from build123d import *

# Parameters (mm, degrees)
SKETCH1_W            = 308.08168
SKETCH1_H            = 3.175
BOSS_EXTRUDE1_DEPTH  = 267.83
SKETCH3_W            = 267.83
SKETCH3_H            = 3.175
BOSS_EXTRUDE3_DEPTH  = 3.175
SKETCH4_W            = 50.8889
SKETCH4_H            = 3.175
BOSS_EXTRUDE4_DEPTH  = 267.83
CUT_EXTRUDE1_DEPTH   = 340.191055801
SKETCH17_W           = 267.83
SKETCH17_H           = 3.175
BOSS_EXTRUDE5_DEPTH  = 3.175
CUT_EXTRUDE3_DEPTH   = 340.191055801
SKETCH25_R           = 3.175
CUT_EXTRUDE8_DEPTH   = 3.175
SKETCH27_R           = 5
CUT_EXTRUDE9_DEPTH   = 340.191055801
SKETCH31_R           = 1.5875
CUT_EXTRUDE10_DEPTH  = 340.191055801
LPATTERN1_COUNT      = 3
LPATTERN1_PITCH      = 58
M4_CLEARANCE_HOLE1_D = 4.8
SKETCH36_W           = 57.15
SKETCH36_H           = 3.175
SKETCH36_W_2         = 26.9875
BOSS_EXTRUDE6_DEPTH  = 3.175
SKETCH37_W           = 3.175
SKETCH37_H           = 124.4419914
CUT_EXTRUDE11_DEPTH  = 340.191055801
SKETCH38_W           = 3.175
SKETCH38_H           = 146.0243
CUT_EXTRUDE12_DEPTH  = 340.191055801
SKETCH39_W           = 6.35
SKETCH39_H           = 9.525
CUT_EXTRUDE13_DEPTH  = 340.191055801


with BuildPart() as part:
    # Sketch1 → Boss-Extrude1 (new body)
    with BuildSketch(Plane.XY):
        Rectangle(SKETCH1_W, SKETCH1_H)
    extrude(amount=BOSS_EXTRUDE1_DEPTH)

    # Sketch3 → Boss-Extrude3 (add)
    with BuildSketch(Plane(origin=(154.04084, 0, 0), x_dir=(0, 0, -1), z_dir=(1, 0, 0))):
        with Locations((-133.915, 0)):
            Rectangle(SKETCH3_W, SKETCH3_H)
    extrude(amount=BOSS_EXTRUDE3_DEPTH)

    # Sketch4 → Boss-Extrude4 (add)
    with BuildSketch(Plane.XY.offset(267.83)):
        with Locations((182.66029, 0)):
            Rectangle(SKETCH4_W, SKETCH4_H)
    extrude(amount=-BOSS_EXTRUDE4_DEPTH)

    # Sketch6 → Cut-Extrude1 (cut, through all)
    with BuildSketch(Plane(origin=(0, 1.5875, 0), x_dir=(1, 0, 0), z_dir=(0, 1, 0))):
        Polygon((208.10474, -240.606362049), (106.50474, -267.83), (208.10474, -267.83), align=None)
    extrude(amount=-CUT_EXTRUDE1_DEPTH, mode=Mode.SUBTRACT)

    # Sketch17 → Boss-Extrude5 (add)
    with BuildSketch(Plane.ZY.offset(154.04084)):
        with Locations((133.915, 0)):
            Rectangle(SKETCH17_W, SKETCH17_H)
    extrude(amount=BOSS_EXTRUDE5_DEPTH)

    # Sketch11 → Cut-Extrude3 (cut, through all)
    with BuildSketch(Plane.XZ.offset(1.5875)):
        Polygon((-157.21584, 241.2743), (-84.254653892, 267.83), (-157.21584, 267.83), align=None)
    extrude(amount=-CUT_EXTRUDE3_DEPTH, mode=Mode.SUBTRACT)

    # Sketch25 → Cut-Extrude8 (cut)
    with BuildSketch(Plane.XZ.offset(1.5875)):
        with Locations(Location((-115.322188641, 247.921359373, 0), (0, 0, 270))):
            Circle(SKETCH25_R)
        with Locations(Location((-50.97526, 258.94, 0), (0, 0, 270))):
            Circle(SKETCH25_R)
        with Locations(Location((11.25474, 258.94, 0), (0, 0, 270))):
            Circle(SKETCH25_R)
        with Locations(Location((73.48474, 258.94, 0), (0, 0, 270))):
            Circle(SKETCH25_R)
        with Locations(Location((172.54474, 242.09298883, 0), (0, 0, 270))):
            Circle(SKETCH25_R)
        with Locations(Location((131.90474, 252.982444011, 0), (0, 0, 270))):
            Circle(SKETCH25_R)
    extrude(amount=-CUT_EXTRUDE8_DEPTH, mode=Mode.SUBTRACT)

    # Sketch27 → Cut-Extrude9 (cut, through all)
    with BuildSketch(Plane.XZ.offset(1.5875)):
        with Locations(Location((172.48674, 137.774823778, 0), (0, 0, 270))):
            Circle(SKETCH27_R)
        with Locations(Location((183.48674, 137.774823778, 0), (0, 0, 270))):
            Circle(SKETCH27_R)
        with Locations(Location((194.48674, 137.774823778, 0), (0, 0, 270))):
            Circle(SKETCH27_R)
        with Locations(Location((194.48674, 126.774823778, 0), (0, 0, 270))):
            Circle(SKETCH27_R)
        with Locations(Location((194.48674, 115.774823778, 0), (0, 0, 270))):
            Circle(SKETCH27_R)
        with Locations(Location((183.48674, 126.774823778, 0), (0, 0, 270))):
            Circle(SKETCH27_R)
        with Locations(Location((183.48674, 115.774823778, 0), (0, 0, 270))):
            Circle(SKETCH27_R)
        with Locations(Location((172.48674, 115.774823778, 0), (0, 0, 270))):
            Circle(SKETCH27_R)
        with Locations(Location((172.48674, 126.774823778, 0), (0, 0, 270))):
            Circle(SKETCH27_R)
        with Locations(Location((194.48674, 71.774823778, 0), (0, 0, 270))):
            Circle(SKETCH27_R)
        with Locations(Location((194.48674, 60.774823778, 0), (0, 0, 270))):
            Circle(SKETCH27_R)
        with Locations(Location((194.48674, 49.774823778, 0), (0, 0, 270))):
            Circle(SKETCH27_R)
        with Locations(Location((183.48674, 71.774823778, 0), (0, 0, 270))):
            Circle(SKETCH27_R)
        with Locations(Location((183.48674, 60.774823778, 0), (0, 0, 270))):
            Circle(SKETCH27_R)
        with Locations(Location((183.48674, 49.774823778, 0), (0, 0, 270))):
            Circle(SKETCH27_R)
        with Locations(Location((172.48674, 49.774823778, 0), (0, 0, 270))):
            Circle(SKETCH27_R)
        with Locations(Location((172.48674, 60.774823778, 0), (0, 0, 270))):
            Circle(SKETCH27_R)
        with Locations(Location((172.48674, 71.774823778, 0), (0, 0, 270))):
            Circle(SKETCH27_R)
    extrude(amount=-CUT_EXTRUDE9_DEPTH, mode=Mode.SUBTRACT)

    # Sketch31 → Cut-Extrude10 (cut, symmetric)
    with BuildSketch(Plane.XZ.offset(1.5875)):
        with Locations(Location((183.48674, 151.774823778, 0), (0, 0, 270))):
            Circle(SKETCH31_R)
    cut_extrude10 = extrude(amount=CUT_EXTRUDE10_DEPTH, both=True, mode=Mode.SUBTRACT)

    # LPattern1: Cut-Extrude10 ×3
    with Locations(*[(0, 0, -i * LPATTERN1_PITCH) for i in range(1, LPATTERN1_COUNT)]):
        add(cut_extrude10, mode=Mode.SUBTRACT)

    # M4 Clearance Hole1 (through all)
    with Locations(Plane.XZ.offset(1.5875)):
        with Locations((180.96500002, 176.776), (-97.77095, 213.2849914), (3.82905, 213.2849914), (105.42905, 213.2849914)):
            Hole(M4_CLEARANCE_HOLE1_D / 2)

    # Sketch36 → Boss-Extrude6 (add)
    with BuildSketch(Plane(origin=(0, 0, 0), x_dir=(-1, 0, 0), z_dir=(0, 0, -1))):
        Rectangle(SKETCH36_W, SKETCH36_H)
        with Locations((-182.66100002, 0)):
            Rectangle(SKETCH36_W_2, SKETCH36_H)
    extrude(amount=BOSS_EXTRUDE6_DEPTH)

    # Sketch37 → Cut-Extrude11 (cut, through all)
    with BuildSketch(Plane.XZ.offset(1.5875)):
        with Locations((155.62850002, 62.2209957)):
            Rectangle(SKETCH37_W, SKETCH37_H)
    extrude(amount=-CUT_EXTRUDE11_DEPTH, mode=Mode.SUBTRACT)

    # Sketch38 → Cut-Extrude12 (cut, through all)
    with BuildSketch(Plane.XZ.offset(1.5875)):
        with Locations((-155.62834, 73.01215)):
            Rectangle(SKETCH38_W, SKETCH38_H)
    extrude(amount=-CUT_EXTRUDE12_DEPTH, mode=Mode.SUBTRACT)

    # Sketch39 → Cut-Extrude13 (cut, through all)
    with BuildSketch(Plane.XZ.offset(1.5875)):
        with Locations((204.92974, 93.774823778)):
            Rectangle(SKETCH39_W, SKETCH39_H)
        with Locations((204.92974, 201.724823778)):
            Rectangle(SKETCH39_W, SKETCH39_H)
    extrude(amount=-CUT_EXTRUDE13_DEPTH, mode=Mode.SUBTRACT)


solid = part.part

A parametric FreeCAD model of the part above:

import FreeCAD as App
import Part
import Sketcher
Q = App.Units.Quantity

doc = App.newDocument("Part")
body = doc.addObject("PartDesign::Body", "Body")

sketch1 = body.newObject("Sketcher::SketchObject", "Sketch")
sketch1.AttachmentSupport = (doc.getObject("XY_Plane"), [""])
sketch1.MapMode = "FlatFace"
sketch1.addGeometry([
    Part.LineSegment(App.Vector(-154.04084, 1.5875, 0), App.Vector(-154.04084, -1.5875, 0)),
    Part.LineSegment(App.Vector(-154.04084, -1.5875, 0), App.Vector(154.04084, -1.5875, 0)),
    Part.LineSegment(App.Vector(154.04084, -1.5875, 0), App.Vector(154.04084, 1.5875, 0)),
    Part.LineSegment(App.Vector(154.04084, 1.5875, 0), App.Vector(-154.04084, 1.5875, 0)),
], False)
sketch1.addConstraint([
    Sketcher.Constraint("Coincident", 0, 2, 1, 1),
    Sketcher.Constraint("Coincident", 1, 2, 2, 1),
    Sketcher.Constraint("Coincident", 2, 2, 3, 1),
    Sketcher.Constraint("Coincident", 3, 2, 0, 1),
    Sketcher.Constraint("Vertical", 0),
    Sketcher.Constraint("Horizontal", 1),
    Sketcher.Constraint("Vertical", 2),
    Sketcher.Constraint("Horizontal", 3),
    Sketcher.Constraint("Symmetric", 0, 2, 2, 2, -1, 1),
    Sketcher.Constraint("DistanceY", 0, 2, 0, 1, Q("0.125 in")),
    Sketcher.Constraint("DistanceX", 1, 1, 1, 2, Q("12.1292 in")),
])
pad1 = body.newObject("PartDesign::Pad", "Pad")
pad1.Profile = sketch1
pad1.Length = 267.83

sketch2 = body.newObject("Sketcher::SketchObject", "Sketch001")
sketch2.AttachmentSupport = (doc.getObject("YZ_Plane"), [""])
sketch2.MapMode = "FlatFace"
sketch2.AttachmentOffset = App.Placement(App.Vector(0, 0, 6.0646 * 25.4), App.Rotation())
sketch2.addGeometry([
    Part.LineSegment(App.Vector(1.5875, 267.83, 0), App.Vector(-1.5875, 267.83, 0)),
    Part.LineSegment(App.Vector(-1.5875, 267.83, 0), App.Vector(-1.5875, 0, 0)),
    Part.LineSegment(App.Vector(-1.5875, 0, 0), App.Vector(1.5875, 0, 0)),
    Part.LineSegment(App.Vector(1.5875, 0, 0), App.Vector(1.5875, 267.83, 0)),
], False)
sketch2.addConstraint([
    Sketcher.Constraint("Coincident", 0, 2, 1, 1),
    Sketcher.Constraint("Coincident", 1, 2, 2, 1),
    Sketcher.Constraint("Coincident", 2, 2, 3, 1),
    Sketcher.Constraint("Coincident", 3, 2, 0, 1),
    Sketcher.Constraint("Horizontal", 0),
    Sketcher.Constraint("Vertical", 1),
    Sketcher.Constraint("Horizontal", 2),
    Sketcher.Constraint("Vertical", 3),
    Sketcher.Constraint("Symmetric", 1, 2, 2, 2, -1, 1),
    Sketcher.Constraint("DistanceX", 0, 2, 0, 1, Q("0.125 in")),
    Sketcher.Constraint("DistanceY", 1, 2, 1, 1, Q("267.83 mm")),
])
pad2 = body.newObject("PartDesign::Pad", "Pad001")
pad2.Profile = sketch2
pad2.Length = Q("0.125 in")

sketch3 = body.newObject("Sketcher::SketchObject", "Sketch002")
sketch3.AttachmentSupport = (doc.getObject("XY_Plane"), [""])
sketch3.MapMode = "FlatFace"
sketch3.AttachmentOffset = App.Placement(App.Vector(0, 0, 267.83), App.Rotation())
sketch3.addGeometry([
    Part.LineSegment(App.Vector(157.21584, 1.5875, 0), App.Vector(157.21584, -1.5875, 0)),
    Part.LineSegment(App.Vector(157.21584, -1.5875, 0), App.Vector(208.10474, -1.5875, 0)),
    Part.LineSegment(App.Vector(208.10474, -1.5875, 0), App.Vector(208.10474, 1.5875, 0)),
    Part.LineSegment(App.Vector(208.10474, 1.5875, 0), App.Vector(157.21584, 1.5875, 0)),
], False)
sketch3.addConstraint([
    Sketcher.Constraint("Coincident", 0, 2, 1, 1),
    Sketcher.Constraint("Coincident", 1, 2, 2, 1),
    Sketcher.Constraint("Coincident", 2, 2, 3, 1),
    Sketcher.Constraint("Coincident", 3, 2, 0, 1),
    Sketcher.Constraint("Vertical", 0),
    Sketcher.Constraint("Horizontal", 1),
    Sketcher.Constraint("Vertical", 2),
    Sketcher.Constraint("Horizontal", 3),
    Sketcher.Constraint("DistanceY", 0, 2, 0, 1, Q("0.125 in")),
    Sketcher.Constraint("DistanceX", 1, 1, 1, 2, Q("2.0035 in")),
    Sketcher.Constraint("DistanceY", 0, 2, -1, 1, Q("0.0625 in")),
    Sketcher.Constraint("DistanceX", -1, 1, 0, 2, Q("6.1896 in")),
])
pad3 = body.newObject("PartDesign::Pad", "Pad002")
pad3.Profile = sketch3
pad3.Length = 267.83
pad3.Reversed = True

sketch4 = body.newObject("Sketcher::SketchObject", "Sketch003")
sketch4.AttachmentSupport = (doc.getObject("XZ_Plane"), [""])
sketch4.MapMode = "FlatFace"
sketch4.AttachmentOffset = App.Placement(App.Vector(0, 0, -0.0625 * 25.4), App.Rotation())
sketch4.addGeometry([
    Part.LineSegment(App.Vector(208.10474, 240.606362, 0), App.Vector(106.50474, 267.83, 0)),
    Part.LineSegment(App.Vector(106.50474, 267.83, 0), App.Vector(208.10474, 267.83, 0)),
    Part.LineSegment(App.Vector(208.10474, 267.83, 0), App.Vector(208.10474, 240.606362, 0)),
], False)
sketch4.addConstraint([
    Sketcher.Constraint("Coincident", 0, 2, 1, 1),
    Sketcher.Constraint("Coincident", 1, 2, 2, 1),
    Sketcher.Constraint("Coincident", 2, 2, 0, 1),
    Sketcher.Constraint("Horizontal", 1),
    Sketcher.Constraint("Vertical", 2),
    Sketcher.Constraint("DistanceX", 1, 1, 1, 2, Q("4 in")),
    Sketcher.Constraint("Angle", 0, Q("165 deg")),
    Sketcher.Constraint("DistanceX", -1, 1, 0, 2, Q("4.1931 in")),
    Sketcher.Constraint("DistanceY", -1, 1, 0, 2, Q("267.83 mm")),
])
pocket1 = body.newObject("PartDesign::Pocket", "Pocket")
pocket1.Profile = sketch4
pocket1.Type = "ThroughAll"
pocket1.Reversed = True

sketch5 = body.newObject("Sketcher::SketchObject", "Sketch004")
sketch5.AttachmentSupport = (doc.getObject("YZ_Plane"), [""])
sketch5.MapMode = "FlatFace"
sketch5.AttachmentOffset = App.Placement(App.Vector(0, 0, -6.0646 * 25.4), App.Rotation())
sketch5.addGeometry([
    Part.LineSegment(App.Vector(1.5875, 0, 0), App.Vector(-1.5875, 0, 0)),
    Part.LineSegment(App.Vector(-1.5875, 0, 0), App.Vector(-1.5875, 267.83, 0)),
    Part.LineSegment(App.Vector(-1.5875, 267.83, 0), App.Vector(1.5875, 267.83, 0)),
    Part.LineSegment(App.Vector(1.5875, 267.83, 0), App.Vector(1.5875, 0, 0)),
], False)
sketch5.addConstraint([
    Sketcher.Constraint("Coincident", 0, 2, 1, 1),
    Sketcher.Constraint("Coincident", 1, 2, 2, 1),
    Sketcher.Constraint("Coincident", 2, 2, 3, 1),
    Sketcher.Constraint("Coincident", 3, 2, 0, 1),
    Sketcher.Constraint("Horizontal", 0),
    Sketcher.Constraint("Vertical", 1),
    Sketcher.Constraint("Horizontal", 2),
    Sketcher.Constraint("Vertical", 3),
    Sketcher.Constraint("Symmetric", 0, 2, 3, 2, -1, 1),
    Sketcher.Constraint("DistanceX", 0, 2, 0, 1, Q("0.125 in")),
    Sketcher.Constraint("DistanceY", 1, 1, 1, 2, Q("267.83 mm")),
])
pad4 = body.newObject("PartDesign::Pad", "Pad003")
pad4.Profile = sketch5
pad4.Length = Q("0.125 in")
pad4.Reversed = True

sketch6 = body.newObject("Sketcher::SketchObject", "Sketch005")
sketch6.AttachmentSupport = (doc.getObject("XZ_Plane"), [""])
sketch6.MapMode = "FlatFace"
sketch6.AttachmentOffset = App.Placement(App.Vector(0, 0, 0.0625 * 25.4), App.Rotation())
sketch6.addGeometry([
    Part.LineSegment(App.Vector(-157.21584, 241.2743, 0), App.Vector(-84.254654, 267.83, 0)),
    Part.LineSegment(App.Vector(-84.254654, 267.83, 0), App.Vector(-157.21584, 267.83, 0)),
    Part.LineSegment(App.Vector(-157.21584, 267.83, 0), App.Vector(-157.21584, 241.2743, 0)),
], False)
sketch6.addConstraint([
    Sketcher.Constraint("Coincident", 0, 2, 1, 1),
    Sketcher.Constraint("Coincident", 1, 2, 2, 1),
    Sketcher.Constraint("Coincident", 2, 2, 0, 1),
    Sketcher.Constraint("Horizontal", 1),
    Sketcher.Constraint("Vertical", 2),
    Sketcher.Constraint("Angle", 0, Q("20 deg")),
    Sketcher.Constraint("DistanceY", 2, 2, 2, 1, Q("1.0455 in")),
    Sketcher.Constraint("DistanceX", 1, 2, -1, 1, Q("6.1896 in")),
    Sketcher.Constraint("DistanceY", -1, 1, 0, 2, Q("267.83 mm")),
])
pocket2 = body.newObject("PartDesign::Pocket", "Pocket001")
pocket2.Profile = sketch6
pocket2.Type = "ThroughAll"

sketch7 = body.newObject("Sketcher::SketchObject", "Sketch006")
sketch7.AttachmentSupport = (doc.getObject("XZ_Plane"), [""])
sketch7.MapMode = "FlatFace"
sketch7.AttachmentOffset = App.Placement(App.Vector(0, 0, 0.0625 * 25.4), App.Rotation())
sketch7.addGeometry([
    Part.Circle(App.Vector(-115.322189, 247.921359, 0), App.Vector(0, 0, 1), 3.175),
    Part.Circle(App.Vector(-50.97526, 258.94, 0), App.Vector(0, 0, 1), 3.175),
    Part.Circle(App.Vector(11.25474, 258.94, 0), App.Vector(0, 0, 1), 3.175),
    Part.Circle(App.Vector(73.48474, 258.94, 0), App.Vector(0, 0, 1), 3.175),
    Part.Circle(App.Vector(172.54474, 242.092989, 0), App.Vector(0, 0, 1), 3.175),
    Part.Circle(App.Vector(131.90474, 252.982444, 0), App.Vector(0, 0, 1), 3.175),
], False)
sketch7.addConstraint([
    Sketcher.Constraint("Equal", 0, 1),
    Sketcher.Constraint("Equal", 1, 2),
    Sketcher.Constraint("Equal", 2, 3),
    Sketcher.Constraint("Equal", 3, 4),
    Sketcher.Constraint("Equal", 4, 5),
    Sketcher.Constraint("Horizontal", 1, 3, 2, 3),
    Sketcher.Constraint("Horizontal", 2, 3, 3, 3),
    Sketcher.Constraint("Diameter", 0, Q("0.25 in")),
    Sketcher.Constraint("DistanceX", 1, 3, 3, 3, Q("4.9 in")),
    Sketcher.Constraint("DistanceX", 3, 3, 4, 3, Q("3.9 in")),
    Sketcher.Constraint("DistanceX", 5, 3, 4, 3, Q("1.6 in")),
    Sketcher.Constraint("DistanceX", 1, 3, 2, 3, Q("2.45 in")),
    Sketcher.Constraint("DistanceX", 1, 3, -1, 1, Q("2.0069 in")),
    Sketcher.Constraint("DistanceY", -1, 1, 1, 3, Q("258.94 mm")),
    Sketcher.Constraint("DistanceX", 0, 3, -1, 1, Q("115.322189 mm")),
    Sketcher.Constraint("DistanceY", -1, 1, 0, 3, Q("247.921359 mm")),
    Sketcher.Constraint("DistanceY", -1, 1, 4, 3, Q("242.092989 mm")),
    Sketcher.Constraint("DistanceY", -1, 1, 5, 3, Q("252.982444 mm")),
])
pocket3 = body.newObject("PartDesign::Pocket", "Pocket002")
pocket3.Profile = sketch7
pocket3.Length = Q("0.125 in")

sketch8 = body.newObject("Sketcher::SketchObject", "Sketch007")
sketch8.AttachmentSupport = (doc.getObject("XZ_Plane"), [""])
sketch8.MapMode = "FlatFace"
sketch8.AttachmentOffset = App.Placement(App.Vector(0, 0, 0.0625 * 25.4), App.Rotation())
sketch8.addGeometry([
    Part.Circle(App.Vector(172.48674, 137.774824, 0), App.Vector(0, 0, 1), 5),
    Part.Circle(App.Vector(183.48674, 137.774824, 0), App.Vector(0, 0, 1), 5),
    Part.Circle(App.Vector(194.48674, 137.774824, 0), App.Vector(0, 0, 1), 5),
    Part.Circle(App.Vector(194.48674, 126.774824, 0), App.Vector(0, 0, 1), 5),
    Part.Circle(App.Vector(194.48674, 115.774824, 0), App.Vector(0, 0, 1), 5),
    Part.Circle(App.Vector(183.48674, 126.774824, 0), App.Vector(0, 0, 1), 5),
    Part.Circle(App.Vector(183.48674, 115.774824, 0), App.Vector(0, 0, 1), 5),
    Part.Circle(App.Vector(172.48674, 115.774824, 0), App.Vector(0, 0, 1), 5),
    Part.Circle(App.Vector(172.48674, 126.774824, 0), App.Vector(0, 0, 1), 5),
    Part.Circle(App.Vector(194.48674, 71.774824, 0), App.Vector(0, 0, 1), 5),
    Part.Circle(App.Vector(194.48674, 60.774824, 0), App.Vector(0, 0, 1), 5),
    Part.Circle(App.Vector(194.48674, 49.774824, 0), App.Vector(0, 0, 1), 5),
    Part.Circle(App.Vector(183.48674, 71.774824, 0), App.Vector(0, 0, 1), 5),
    Part.Circle(App.Vector(183.48674, 60.774824, 0), App.Vector(0, 0, 1), 5),
    Part.Circle(App.Vector(183.48674, 49.774824, 0), App.Vector(0, 0, 1), 5),
    Part.Circle(App.Vector(172.48674, 49.774824, 0), App.Vector(0, 0, 1), 5),
    Part.Circle(App.Vector(172.48674, 60.774824, 0), App.Vector(0, 0, 1), 5),
    Part.Circle(App.Vector(172.48674, 71.774824, 0), App.Vector(0, 0, 1), 5),
], False)
sketch8.addConstraint([
    Sketcher.Constraint("Equal", 0, 1),
    Sketcher.Constraint("Equal", 1, 2),
    Sketcher.Constraint("Equal", 2, 3),
    Sketcher.Constraint("Equal", 3, 4),
    Sketcher.Constraint("Equal", 4, 5),
    Sketcher.Constraint("Equal", 5, 6),
    Sketcher.Constraint("Equal", 6, 7),
    Sketcher.Constraint("Equal", 7, 8),
    Sketcher.Constraint("Equal", 8, 9),
    Sketcher.Constraint("Equal", 9, 10),
    Sketcher.Constraint("Equal", 10, 11),
    Sketcher.Constraint("Equal", 11, 12),
    Sketcher.Constraint("Equal", 12, 13),
    Sketcher.Constraint("Equal", 13, 14),
    Sketcher.Constraint("Equal", 14, 15),
    Sketcher.Constraint("Equal", 15, 16),
    Sketcher.Constraint("Equal", 16, 17),
    Sketcher.Constraint("Horizontal", 0, 3, 1, 3),
    Sketcher.Constraint("Horizontal", 1, 3, 2, 3),
    Sketcher.Constraint("Horizontal", 3, 3, 5, 3),
    Sketcher.Constraint("Horizontal", 4, 3, 6, 3),
    Sketcher.Constraint("Horizontal", 6, 3, 7, 3),
    Sketcher.Constraint("Horizontal", 5, 3, 8, 3),
    Sketcher.Constraint("Horizontal", 9, 3, 12, 3),
    Sketcher.Constraint("Horizontal", 10, 3, 13, 3),
    Sketcher.Constraint("Horizontal", 11, 3, 14, 3),
    Sketcher.Constraint("Horizontal", 14, 3, 15, 3),
    Sketcher.Constraint("Horizontal", 13, 3, 16, 3),
    Sketcher.Constraint("Horizontal", 12, 3, 17, 3),
    Sketcher.Constraint("Vertical", 2, 3, 3, 3),
    Sketcher.Constraint("Vertical", 3, 3, 4, 3),
    Sketcher.Constraint("Vertical", 1, 3, 5, 3),
    Sketcher.Constraint("Vertical", 5, 3, 6, 3),
    Sketcher.Constraint("Vertical", 0, 3, 7, 3),
    Sketcher.Constraint("Vertical", 7, 3, 8, 3),
    Sketcher.Constraint("Vertical", 4, 3, 9, 3),
    Sketcher.Constraint("Vertical", 9, 3, 10, 3),
    Sketcher.Constraint("Vertical", 10, 3, 11, 3),
    Sketcher.Constraint("Vertical", 6, 3, 12, 3),
    Sketcher.Constraint("Vertical", 12, 3, 13, 3),
    Sketcher.Constraint("Vertical", 13, 3, 14, 3),
    Sketcher.Constraint("Vertical", 8, 3, 15, 3),
    Sketcher.Constraint("Vertical", 15, 3, 16, 3),
    Sketcher.Constraint("Vertical", 16, 3, 17, 3),
    Sketcher.Constraint("Diameter", 0, Q("10 mm")),
    Sketcher.Constraint("DistanceX", 0, 3, 1, 3, Q("11 mm")),
    Sketcher.Constraint("DistanceX", 1, 3, 2, 3, Q("11 mm")),
    Sketcher.Constraint("DistanceY", 3, 3, 2, 3, Q("11 mm")),
    Sketcher.Constraint("DistanceY", 4, 3, 3, 3, Q("11 mm")),
    Sketcher.Constraint("DistanceY", 9, 3, 4, 3, Q("44 mm")),
    Sketcher.Constraint("DistanceY", 10, 3, 9, 3, Q("11 mm")),
    Sketcher.Constraint("DistanceY", 11, 3, 10, 3, Q("11 mm")),
    Sketcher.Constraint("DistanceX", -1, 1, 0, 3, Q("172.48674 mm")),
    Sketcher.Constraint("DistanceY", -1, 1, 0, 3, Q("137.774824 mm")),
])
pocket4 = body.newObject("PartDesign::Pocket", "Pocket003")
pocket4.Profile = sketch8
pocket4.Type = "ThroughAll"

sketch9 = body.newObject("Sketcher::SketchObject", "Sketch008")
sketch9.AttachmentSupport = (doc.getObject("XZ_Plane"), [""])
sketch9.MapMode = "FlatFace"
sketch9.AttachmentOffset = App.Placement(App.Vector(0, 0, 0.0625 * 25.4), App.Rotation())
sketch9.addGeometry(Part.Circle(App.Vector(183.48674, 151.774824, 0), App.Vector(0, 0, 1), 1.5875), False)
sketch9.addConstraint([
    Sketcher.Constraint("Diameter", 0, Q("0.125 in")),
    Sketcher.Constraint("DistanceX", -1, 1, 0, 3, Q("183.48674 mm")),
    Sketcher.Constraint("DistanceY", -1, 1, 0, 3, Q("151.774824 mm")),
])
pocket5 = body.newObject("PartDesign::Pocket", "Pocket004")
pocket5.Profile = sketch9
pocket5.Length = 680.382112
pocket5.Midplane = True
doc.recompute()

linearpattern = body.newObject("PartDesign::LinearPattern", "LinearPattern")
linearpattern.Originals = [pocket5]
linearpattern.Direction = (doc.getObject("Z_Axis"), [""])
linearpattern.Mode = "offset"
linearpattern.Offset = 58
linearpattern.Occurrences = 3
linearpattern.Reversed = True
body.Tip = linearpattern

sketch10 = body.newObject("Sketcher::SketchObject", "Sketch009")
sketch10.AttachmentSupport = (doc.getObject("XZ_Plane"), [""])
sketch10.MapMode = "FlatFace"
sketch10.AttachmentOffset = App.Placement(App.Vector(0, 0, 0.0625 * 25.4), App.Rotation())
sketch10.addGeometry([
    Part.Circle(App.Vector(180.965, 176.776, 0), App.Vector(0, 0, 1), 2.4),
    Part.Circle(App.Vector(-97.77095, 213.284991, 0), App.Vector(0, 0, 1), 2.4),
    Part.Circle(App.Vector(3.82905, 213.284991, 0), App.Vector(0, 0, 1), 2.4),
    Part.Circle(App.Vector(105.42905, 213.284991, 0), App.Vector(0, 0, 1), 2.4),
], False)
sketch10.addConstraint([
    Sketcher.Constraint("Equal", 0, 1),
    Sketcher.Constraint("Equal", 1, 2),
    Sketcher.Constraint("Equal", 2, 3),
    Sketcher.Constraint("Horizontal", 1, 3, 2, 3),
    Sketcher.Constraint("Horizontal", 2, 3, 3, 3),
    Sketcher.Constraint("DistanceX", 1, 3, 2, 3, Q("4 in")),
    Sketcher.Constraint("DistanceX", 2, 3, 3, 3, Q("4 in")),
    Sketcher.Constraint("Diameter", 0, Q("4.8 mm")),
    Sketcher.Constraint("DistanceX", -1, 1, 0, 3, Q("180.965 mm")),
    Sketcher.Constraint("DistanceY", -1, 1, 0, 3, Q("176.776 mm")),
    Sketcher.Constraint("DistanceX", 1, 3, -1, 1, Q("97.77095 mm")),
    Sketcher.Constraint("DistanceY", -1, 1, 1, 3, Q("213.284991 mm")),
])
doc.recompute()
hole = body.newObject("PartDesign::Hole", "Hole")
hole.Profile = sketch10
hole.ThreadType = "None"
hole.Diameter = 4.8
hole.DepthType = "ThroughAll"

sketch11 = body.newObject("Sketcher::SketchObject", "Sketch010")
sketch11.AttachmentSupport = (doc.getObject("XY_Plane"), [""])
sketch11.MapMode = "FlatFace"
sketch11.addGeometry([
    Part.LineSegment(App.Vector(28.575, 1.5875, 0), App.Vector(28.575, -1.5875, 0)),
    Part.LineSegment(App.Vector(28.575, -1.5875, 0), App.Vector(-28.575, -1.5875, 0)),
    Part.LineSegment(App.Vector(-28.575, -1.5875, 0), App.Vector(-28.575, 1.5875, 0)),
    Part.LineSegment(App.Vector(-28.575, 1.5875, 0), App.Vector(28.575, 1.5875, 0)),
    Part.LineSegment(App.Vector(196.15475, 1.5875, 0), App.Vector(196.15475, -1.5875, 0)),
    Part.LineSegment(App.Vector(196.15475, -1.5875, 0), App.Vector(169.16725, -1.5875, 0)),
    Part.LineSegment(App.Vector(169.16725, -1.5875, 0), App.Vector(169.16725, 1.5875, 0)),
    Part.LineSegment(App.Vector(169.16725, 1.5875, 0), App.Vector(196.15475, 1.5875, 0)),
], False)
sketch11.addConstraint([
    Sketcher.Constraint("Coincident", 0, 2, 1, 1),
    Sketcher.Constraint("Coincident", 1, 2, 2, 1),
    Sketcher.Constraint("Coincident", 2, 2, 3, 1),
    Sketcher.Constraint("Coincident", 3, 2, 0, 1),
    Sketcher.Constraint("Coincident", 4, 2, 5, 1),
    Sketcher.Constraint("Coincident", 5, 2, 6, 1),
    Sketcher.Constraint("Coincident", 6, 2, 7, 1),
    Sketcher.Constraint("Coincident", 7, 2, 4, 1),
    Sketcher.Constraint("Vertical", 0),
    Sketcher.Constraint("Horizontal", 1),
    Sketcher.Constraint("Vertical", 2),
    Sketcher.Constraint("Horizontal", 3),
    Sketcher.Constraint("Vertical", 4),
    Sketcher.Constraint("Horizontal", 5),
    Sketcher.Constraint("Vertical", 6),
    Sketcher.Constraint("Horizontal", 7),
    Sketcher.Constraint("Symmetric", 0, 2, 2, 2, -1, 1),
    Sketcher.Constraint("Horizontal", 1, 2, 4, 2),
    Sketcher.Constraint("Horizontal", 3, 2, 6, 2),
    Sketcher.Constraint("DistanceX", 1, 2, 1, 1, Q("2.25 in")),
    Sketcher.Constraint("DistanceX", 5, 2, 5, 1, Q("1.0625 in")),
    Sketcher.Constraint("DistanceY", 0, 2, 0, 1, Q("0.125 in")),
    Sketcher.Constraint("DistanceX", -1, 1, 4, 2, Q("196.15475 mm")),
])
pad5 = body.newObject("PartDesign::Pad", "Pad004")
pad5.Profile = sketch11
pad5.Length = Q("0.125 in")
pad5.Reversed = True

sketch12 = body.newObject("Sketcher::SketchObject", "Sketch011")
sketch12.AttachmentSupport = (doc.getObject("XZ_Plane"), [""])
sketch12.MapMode = "FlatFace"
sketch12.AttachmentOffset = App.Placement(App.Vector(0, 0, 0.0625 * 25.4), App.Rotation())
sketch12.addGeometry([
    Part.LineSegment(App.Vector(154.041, 124.441991, 0), App.Vector(154.041, 0, 0)),
    Part.LineSegment(App.Vector(154.041, 0, 0), App.Vector(157.216, 0, 0)),
    Part.LineSegment(App.Vector(157.216, 0, 0), App.Vector(157.216, 124.441991, 0)),
    Part.LineSegment(App.Vector(157.216, 124.441991, 0), App.Vector(154.041, 124.441991, 0)),
], False)
sketch12.addConstraint([
    Sketcher.Constraint("Coincident", 0, 2, 1, 1),
    Sketcher.Constraint("Coincident", 1, 2, 2, 1),
    Sketcher.Constraint("Coincident", 2, 2, 3, 1),
    Sketcher.Constraint("Coincident", 3, 2, 0, 1),
    Sketcher.Constraint("Vertical", 0),
    Sketcher.Constraint("Horizontal", 1),
    Sketcher.Constraint("Vertical", 2),
    Sketcher.Constraint("Horizontal", 3),
    Sketcher.Constraint("PointOnObject", 0, 2, -1),
    Sketcher.Constraint("DistanceX", 1, 1, 1, 2, Q("0.125 in")),
    Sketcher.Constraint("DistanceY", 0, 2, 0, 1, Q("124.441991 mm")),
    Sketcher.Constraint("DistanceX", -1, 1, 0, 2, Q("154.041 mm")),
])
pocket6 = body.newObject("PartDesign::Pocket", "Pocket005")
pocket6.Profile = sketch12
pocket6.Type = "ThroughAll"

sketch13 = body.newObject("Sketcher::SketchObject", "Sketch012")
sketch13.AttachmentSupport = (doc.getObject("XZ_Plane"), [""])
sketch13.MapMode = "FlatFace"
sketch13.AttachmentOffset = App.Placement(App.Vector(0, 0, 0.0625 * 25.4), App.Rotation())
sketch13.addGeometry([
    Part.LineSegment(App.Vector(-157.21584, 146.0243, 0), App.Vector(-157.21584, 0, 0)),
    Part.LineSegment(App.Vector(-157.21584, 0, 0), App.Vector(-154.04084, 0, 0)),
    Part.LineSegment(App.Vector(-154.04084, 0, 0), App.Vector(-154.04084, 146.0243, 0)),
    Part.LineSegment(App.Vector(-154.04084, 146.0243, 0), App.Vector(-157.21584, 146.0243, 0)),
], False)
sketch13.addConstraint([
    Sketcher.Constraint("Coincident", 0, 2, 1, 1),
    Sketcher.Constraint("Coincident", 1, 2, 2, 1),
    Sketcher.Constraint("Coincident", 2, 2, 3, 1),
    Sketcher.Constraint("Coincident", 3, 2, 0, 1),
    Sketcher.Constraint("Vertical", 0),
    Sketcher.Constraint("Horizontal", 1),
    Sketcher.Constraint("Vertical", 2),
    Sketcher.Constraint("Horizontal", 3),
    Sketcher.Constraint("PointOnObject", 0, 2, -1),
    Sketcher.Constraint("DistanceX", 1, 1, 1, 2, Q("0.125 in")),
    Sketcher.Constraint("DistanceY", 0, 2, 0, 1, Q("146.0243 mm")),
    Sketcher.Constraint("DistanceX", 0, 2, -1, 1, Q("6.1896 in")),
])
pocket7 = body.newObject("PartDesign::Pocket", "Pocket006")
pocket7.Profile = sketch13
pocket7.Type = "ThroughAll"

sketch14 = body.newObject("Sketcher::SketchObject", "Sketch013")
sketch14.AttachmentSupport = (doc.getObject("XZ_Plane"), [""])
sketch14.MapMode = "FlatFace"
sketch14.AttachmentOffset = App.Placement(App.Vector(0, 0, 0.0625 * 25.4), App.Rotation())
sketch14.addGeometry([
    Part.LineSegment(App.Vector(201.75474, 98.537324, 0), App.Vector(201.75474, 89.012324, 0)),
    Part.LineSegment(App.Vector(201.75474, 89.012324, 0), App.Vector(208.10474, 89.012324, 0)),
    Part.LineSegment(App.Vector(208.10474, 89.012324, 0), App.Vector(208.10474, 98.537324, 0)),
    Part.LineSegment(App.Vector(208.10474, 98.537324, 0), App.Vector(201.75474, 98.537324, 0)),
    Part.LineSegment(App.Vector(201.75474, 206.487324, 0), App.Vector(201.75474, 196.962324, 0)),
    Part.LineSegment(App.Vector(201.75474, 196.962324, 0), App.Vector(208.10474, 196.962324, 0)),
    Part.LineSegment(App.Vector(208.10474, 196.962324, 0), App.Vector(208.10474, 206.487324, 0)),
    Part.LineSegment(App.Vector(208.10474, 206.487324, 0), App.Vector(201.75474, 206.487324, 0)),
], False)
sketch14.addConstraint([
    Sketcher.Constraint("Coincident", 0, 2, 1, 1),
    Sketcher.Constraint("Coincident", 1, 2, 2, 1),
    Sketcher.Constraint("Coincident", 2, 2, 3, 1),
    Sketcher.Constraint("Coincident", 3, 2, 0, 1),
    Sketcher.Constraint("Coincident", 4, 2, 5, 1),
    Sketcher.Constraint("Coincident", 5, 2, 6, 1),
    Sketcher.Constraint("Coincident", 6, 2, 7, 1),
    Sketcher.Constraint("Coincident", 7, 2, 4, 1),
    Sketcher.Constraint("Vertical", 0),
    Sketcher.Constraint("Horizontal", 1),
    Sketcher.Constraint("Vertical", 2),
    Sketcher.Constraint("Horizontal", 3),
    Sketcher.Constraint("Vertical", 4),
    Sketcher.Constraint("Horizontal", 5),
    Sketcher.Constraint("Vertical", 6),
    Sketcher.Constraint("Horizontal", 7),
    Sketcher.Constraint("Vertical", 3, 2, 4, 2),
    Sketcher.Constraint("Vertical", 2, 2, 5, 2),
    Sketcher.Constraint("Equal", 2, 4),
    Sketcher.Constraint("DistanceX", 1, 1, 1, 2, Q("0.25 in")),
    Sketcher.Constraint("DistanceY", 0, 2, 0, 1, Q("0.375 in")),
    Sketcher.Constraint("DistanceY", 0, 2, 4, 2, Q("4.25 in")),
    Sketcher.Constraint("DistanceX", -1, 1, 0, 2, Q("7.9431 in")),
    Sketcher.Constraint("DistanceY", -1, 1, 0, 2, Q("89.012324 mm")),
])
pocket8 = body.newObject("PartDesign::Pocket", "Pocket007")
pocket8.Profile = sketch14
pocket8.Type = "ThroughAll"

doc.recompute()
